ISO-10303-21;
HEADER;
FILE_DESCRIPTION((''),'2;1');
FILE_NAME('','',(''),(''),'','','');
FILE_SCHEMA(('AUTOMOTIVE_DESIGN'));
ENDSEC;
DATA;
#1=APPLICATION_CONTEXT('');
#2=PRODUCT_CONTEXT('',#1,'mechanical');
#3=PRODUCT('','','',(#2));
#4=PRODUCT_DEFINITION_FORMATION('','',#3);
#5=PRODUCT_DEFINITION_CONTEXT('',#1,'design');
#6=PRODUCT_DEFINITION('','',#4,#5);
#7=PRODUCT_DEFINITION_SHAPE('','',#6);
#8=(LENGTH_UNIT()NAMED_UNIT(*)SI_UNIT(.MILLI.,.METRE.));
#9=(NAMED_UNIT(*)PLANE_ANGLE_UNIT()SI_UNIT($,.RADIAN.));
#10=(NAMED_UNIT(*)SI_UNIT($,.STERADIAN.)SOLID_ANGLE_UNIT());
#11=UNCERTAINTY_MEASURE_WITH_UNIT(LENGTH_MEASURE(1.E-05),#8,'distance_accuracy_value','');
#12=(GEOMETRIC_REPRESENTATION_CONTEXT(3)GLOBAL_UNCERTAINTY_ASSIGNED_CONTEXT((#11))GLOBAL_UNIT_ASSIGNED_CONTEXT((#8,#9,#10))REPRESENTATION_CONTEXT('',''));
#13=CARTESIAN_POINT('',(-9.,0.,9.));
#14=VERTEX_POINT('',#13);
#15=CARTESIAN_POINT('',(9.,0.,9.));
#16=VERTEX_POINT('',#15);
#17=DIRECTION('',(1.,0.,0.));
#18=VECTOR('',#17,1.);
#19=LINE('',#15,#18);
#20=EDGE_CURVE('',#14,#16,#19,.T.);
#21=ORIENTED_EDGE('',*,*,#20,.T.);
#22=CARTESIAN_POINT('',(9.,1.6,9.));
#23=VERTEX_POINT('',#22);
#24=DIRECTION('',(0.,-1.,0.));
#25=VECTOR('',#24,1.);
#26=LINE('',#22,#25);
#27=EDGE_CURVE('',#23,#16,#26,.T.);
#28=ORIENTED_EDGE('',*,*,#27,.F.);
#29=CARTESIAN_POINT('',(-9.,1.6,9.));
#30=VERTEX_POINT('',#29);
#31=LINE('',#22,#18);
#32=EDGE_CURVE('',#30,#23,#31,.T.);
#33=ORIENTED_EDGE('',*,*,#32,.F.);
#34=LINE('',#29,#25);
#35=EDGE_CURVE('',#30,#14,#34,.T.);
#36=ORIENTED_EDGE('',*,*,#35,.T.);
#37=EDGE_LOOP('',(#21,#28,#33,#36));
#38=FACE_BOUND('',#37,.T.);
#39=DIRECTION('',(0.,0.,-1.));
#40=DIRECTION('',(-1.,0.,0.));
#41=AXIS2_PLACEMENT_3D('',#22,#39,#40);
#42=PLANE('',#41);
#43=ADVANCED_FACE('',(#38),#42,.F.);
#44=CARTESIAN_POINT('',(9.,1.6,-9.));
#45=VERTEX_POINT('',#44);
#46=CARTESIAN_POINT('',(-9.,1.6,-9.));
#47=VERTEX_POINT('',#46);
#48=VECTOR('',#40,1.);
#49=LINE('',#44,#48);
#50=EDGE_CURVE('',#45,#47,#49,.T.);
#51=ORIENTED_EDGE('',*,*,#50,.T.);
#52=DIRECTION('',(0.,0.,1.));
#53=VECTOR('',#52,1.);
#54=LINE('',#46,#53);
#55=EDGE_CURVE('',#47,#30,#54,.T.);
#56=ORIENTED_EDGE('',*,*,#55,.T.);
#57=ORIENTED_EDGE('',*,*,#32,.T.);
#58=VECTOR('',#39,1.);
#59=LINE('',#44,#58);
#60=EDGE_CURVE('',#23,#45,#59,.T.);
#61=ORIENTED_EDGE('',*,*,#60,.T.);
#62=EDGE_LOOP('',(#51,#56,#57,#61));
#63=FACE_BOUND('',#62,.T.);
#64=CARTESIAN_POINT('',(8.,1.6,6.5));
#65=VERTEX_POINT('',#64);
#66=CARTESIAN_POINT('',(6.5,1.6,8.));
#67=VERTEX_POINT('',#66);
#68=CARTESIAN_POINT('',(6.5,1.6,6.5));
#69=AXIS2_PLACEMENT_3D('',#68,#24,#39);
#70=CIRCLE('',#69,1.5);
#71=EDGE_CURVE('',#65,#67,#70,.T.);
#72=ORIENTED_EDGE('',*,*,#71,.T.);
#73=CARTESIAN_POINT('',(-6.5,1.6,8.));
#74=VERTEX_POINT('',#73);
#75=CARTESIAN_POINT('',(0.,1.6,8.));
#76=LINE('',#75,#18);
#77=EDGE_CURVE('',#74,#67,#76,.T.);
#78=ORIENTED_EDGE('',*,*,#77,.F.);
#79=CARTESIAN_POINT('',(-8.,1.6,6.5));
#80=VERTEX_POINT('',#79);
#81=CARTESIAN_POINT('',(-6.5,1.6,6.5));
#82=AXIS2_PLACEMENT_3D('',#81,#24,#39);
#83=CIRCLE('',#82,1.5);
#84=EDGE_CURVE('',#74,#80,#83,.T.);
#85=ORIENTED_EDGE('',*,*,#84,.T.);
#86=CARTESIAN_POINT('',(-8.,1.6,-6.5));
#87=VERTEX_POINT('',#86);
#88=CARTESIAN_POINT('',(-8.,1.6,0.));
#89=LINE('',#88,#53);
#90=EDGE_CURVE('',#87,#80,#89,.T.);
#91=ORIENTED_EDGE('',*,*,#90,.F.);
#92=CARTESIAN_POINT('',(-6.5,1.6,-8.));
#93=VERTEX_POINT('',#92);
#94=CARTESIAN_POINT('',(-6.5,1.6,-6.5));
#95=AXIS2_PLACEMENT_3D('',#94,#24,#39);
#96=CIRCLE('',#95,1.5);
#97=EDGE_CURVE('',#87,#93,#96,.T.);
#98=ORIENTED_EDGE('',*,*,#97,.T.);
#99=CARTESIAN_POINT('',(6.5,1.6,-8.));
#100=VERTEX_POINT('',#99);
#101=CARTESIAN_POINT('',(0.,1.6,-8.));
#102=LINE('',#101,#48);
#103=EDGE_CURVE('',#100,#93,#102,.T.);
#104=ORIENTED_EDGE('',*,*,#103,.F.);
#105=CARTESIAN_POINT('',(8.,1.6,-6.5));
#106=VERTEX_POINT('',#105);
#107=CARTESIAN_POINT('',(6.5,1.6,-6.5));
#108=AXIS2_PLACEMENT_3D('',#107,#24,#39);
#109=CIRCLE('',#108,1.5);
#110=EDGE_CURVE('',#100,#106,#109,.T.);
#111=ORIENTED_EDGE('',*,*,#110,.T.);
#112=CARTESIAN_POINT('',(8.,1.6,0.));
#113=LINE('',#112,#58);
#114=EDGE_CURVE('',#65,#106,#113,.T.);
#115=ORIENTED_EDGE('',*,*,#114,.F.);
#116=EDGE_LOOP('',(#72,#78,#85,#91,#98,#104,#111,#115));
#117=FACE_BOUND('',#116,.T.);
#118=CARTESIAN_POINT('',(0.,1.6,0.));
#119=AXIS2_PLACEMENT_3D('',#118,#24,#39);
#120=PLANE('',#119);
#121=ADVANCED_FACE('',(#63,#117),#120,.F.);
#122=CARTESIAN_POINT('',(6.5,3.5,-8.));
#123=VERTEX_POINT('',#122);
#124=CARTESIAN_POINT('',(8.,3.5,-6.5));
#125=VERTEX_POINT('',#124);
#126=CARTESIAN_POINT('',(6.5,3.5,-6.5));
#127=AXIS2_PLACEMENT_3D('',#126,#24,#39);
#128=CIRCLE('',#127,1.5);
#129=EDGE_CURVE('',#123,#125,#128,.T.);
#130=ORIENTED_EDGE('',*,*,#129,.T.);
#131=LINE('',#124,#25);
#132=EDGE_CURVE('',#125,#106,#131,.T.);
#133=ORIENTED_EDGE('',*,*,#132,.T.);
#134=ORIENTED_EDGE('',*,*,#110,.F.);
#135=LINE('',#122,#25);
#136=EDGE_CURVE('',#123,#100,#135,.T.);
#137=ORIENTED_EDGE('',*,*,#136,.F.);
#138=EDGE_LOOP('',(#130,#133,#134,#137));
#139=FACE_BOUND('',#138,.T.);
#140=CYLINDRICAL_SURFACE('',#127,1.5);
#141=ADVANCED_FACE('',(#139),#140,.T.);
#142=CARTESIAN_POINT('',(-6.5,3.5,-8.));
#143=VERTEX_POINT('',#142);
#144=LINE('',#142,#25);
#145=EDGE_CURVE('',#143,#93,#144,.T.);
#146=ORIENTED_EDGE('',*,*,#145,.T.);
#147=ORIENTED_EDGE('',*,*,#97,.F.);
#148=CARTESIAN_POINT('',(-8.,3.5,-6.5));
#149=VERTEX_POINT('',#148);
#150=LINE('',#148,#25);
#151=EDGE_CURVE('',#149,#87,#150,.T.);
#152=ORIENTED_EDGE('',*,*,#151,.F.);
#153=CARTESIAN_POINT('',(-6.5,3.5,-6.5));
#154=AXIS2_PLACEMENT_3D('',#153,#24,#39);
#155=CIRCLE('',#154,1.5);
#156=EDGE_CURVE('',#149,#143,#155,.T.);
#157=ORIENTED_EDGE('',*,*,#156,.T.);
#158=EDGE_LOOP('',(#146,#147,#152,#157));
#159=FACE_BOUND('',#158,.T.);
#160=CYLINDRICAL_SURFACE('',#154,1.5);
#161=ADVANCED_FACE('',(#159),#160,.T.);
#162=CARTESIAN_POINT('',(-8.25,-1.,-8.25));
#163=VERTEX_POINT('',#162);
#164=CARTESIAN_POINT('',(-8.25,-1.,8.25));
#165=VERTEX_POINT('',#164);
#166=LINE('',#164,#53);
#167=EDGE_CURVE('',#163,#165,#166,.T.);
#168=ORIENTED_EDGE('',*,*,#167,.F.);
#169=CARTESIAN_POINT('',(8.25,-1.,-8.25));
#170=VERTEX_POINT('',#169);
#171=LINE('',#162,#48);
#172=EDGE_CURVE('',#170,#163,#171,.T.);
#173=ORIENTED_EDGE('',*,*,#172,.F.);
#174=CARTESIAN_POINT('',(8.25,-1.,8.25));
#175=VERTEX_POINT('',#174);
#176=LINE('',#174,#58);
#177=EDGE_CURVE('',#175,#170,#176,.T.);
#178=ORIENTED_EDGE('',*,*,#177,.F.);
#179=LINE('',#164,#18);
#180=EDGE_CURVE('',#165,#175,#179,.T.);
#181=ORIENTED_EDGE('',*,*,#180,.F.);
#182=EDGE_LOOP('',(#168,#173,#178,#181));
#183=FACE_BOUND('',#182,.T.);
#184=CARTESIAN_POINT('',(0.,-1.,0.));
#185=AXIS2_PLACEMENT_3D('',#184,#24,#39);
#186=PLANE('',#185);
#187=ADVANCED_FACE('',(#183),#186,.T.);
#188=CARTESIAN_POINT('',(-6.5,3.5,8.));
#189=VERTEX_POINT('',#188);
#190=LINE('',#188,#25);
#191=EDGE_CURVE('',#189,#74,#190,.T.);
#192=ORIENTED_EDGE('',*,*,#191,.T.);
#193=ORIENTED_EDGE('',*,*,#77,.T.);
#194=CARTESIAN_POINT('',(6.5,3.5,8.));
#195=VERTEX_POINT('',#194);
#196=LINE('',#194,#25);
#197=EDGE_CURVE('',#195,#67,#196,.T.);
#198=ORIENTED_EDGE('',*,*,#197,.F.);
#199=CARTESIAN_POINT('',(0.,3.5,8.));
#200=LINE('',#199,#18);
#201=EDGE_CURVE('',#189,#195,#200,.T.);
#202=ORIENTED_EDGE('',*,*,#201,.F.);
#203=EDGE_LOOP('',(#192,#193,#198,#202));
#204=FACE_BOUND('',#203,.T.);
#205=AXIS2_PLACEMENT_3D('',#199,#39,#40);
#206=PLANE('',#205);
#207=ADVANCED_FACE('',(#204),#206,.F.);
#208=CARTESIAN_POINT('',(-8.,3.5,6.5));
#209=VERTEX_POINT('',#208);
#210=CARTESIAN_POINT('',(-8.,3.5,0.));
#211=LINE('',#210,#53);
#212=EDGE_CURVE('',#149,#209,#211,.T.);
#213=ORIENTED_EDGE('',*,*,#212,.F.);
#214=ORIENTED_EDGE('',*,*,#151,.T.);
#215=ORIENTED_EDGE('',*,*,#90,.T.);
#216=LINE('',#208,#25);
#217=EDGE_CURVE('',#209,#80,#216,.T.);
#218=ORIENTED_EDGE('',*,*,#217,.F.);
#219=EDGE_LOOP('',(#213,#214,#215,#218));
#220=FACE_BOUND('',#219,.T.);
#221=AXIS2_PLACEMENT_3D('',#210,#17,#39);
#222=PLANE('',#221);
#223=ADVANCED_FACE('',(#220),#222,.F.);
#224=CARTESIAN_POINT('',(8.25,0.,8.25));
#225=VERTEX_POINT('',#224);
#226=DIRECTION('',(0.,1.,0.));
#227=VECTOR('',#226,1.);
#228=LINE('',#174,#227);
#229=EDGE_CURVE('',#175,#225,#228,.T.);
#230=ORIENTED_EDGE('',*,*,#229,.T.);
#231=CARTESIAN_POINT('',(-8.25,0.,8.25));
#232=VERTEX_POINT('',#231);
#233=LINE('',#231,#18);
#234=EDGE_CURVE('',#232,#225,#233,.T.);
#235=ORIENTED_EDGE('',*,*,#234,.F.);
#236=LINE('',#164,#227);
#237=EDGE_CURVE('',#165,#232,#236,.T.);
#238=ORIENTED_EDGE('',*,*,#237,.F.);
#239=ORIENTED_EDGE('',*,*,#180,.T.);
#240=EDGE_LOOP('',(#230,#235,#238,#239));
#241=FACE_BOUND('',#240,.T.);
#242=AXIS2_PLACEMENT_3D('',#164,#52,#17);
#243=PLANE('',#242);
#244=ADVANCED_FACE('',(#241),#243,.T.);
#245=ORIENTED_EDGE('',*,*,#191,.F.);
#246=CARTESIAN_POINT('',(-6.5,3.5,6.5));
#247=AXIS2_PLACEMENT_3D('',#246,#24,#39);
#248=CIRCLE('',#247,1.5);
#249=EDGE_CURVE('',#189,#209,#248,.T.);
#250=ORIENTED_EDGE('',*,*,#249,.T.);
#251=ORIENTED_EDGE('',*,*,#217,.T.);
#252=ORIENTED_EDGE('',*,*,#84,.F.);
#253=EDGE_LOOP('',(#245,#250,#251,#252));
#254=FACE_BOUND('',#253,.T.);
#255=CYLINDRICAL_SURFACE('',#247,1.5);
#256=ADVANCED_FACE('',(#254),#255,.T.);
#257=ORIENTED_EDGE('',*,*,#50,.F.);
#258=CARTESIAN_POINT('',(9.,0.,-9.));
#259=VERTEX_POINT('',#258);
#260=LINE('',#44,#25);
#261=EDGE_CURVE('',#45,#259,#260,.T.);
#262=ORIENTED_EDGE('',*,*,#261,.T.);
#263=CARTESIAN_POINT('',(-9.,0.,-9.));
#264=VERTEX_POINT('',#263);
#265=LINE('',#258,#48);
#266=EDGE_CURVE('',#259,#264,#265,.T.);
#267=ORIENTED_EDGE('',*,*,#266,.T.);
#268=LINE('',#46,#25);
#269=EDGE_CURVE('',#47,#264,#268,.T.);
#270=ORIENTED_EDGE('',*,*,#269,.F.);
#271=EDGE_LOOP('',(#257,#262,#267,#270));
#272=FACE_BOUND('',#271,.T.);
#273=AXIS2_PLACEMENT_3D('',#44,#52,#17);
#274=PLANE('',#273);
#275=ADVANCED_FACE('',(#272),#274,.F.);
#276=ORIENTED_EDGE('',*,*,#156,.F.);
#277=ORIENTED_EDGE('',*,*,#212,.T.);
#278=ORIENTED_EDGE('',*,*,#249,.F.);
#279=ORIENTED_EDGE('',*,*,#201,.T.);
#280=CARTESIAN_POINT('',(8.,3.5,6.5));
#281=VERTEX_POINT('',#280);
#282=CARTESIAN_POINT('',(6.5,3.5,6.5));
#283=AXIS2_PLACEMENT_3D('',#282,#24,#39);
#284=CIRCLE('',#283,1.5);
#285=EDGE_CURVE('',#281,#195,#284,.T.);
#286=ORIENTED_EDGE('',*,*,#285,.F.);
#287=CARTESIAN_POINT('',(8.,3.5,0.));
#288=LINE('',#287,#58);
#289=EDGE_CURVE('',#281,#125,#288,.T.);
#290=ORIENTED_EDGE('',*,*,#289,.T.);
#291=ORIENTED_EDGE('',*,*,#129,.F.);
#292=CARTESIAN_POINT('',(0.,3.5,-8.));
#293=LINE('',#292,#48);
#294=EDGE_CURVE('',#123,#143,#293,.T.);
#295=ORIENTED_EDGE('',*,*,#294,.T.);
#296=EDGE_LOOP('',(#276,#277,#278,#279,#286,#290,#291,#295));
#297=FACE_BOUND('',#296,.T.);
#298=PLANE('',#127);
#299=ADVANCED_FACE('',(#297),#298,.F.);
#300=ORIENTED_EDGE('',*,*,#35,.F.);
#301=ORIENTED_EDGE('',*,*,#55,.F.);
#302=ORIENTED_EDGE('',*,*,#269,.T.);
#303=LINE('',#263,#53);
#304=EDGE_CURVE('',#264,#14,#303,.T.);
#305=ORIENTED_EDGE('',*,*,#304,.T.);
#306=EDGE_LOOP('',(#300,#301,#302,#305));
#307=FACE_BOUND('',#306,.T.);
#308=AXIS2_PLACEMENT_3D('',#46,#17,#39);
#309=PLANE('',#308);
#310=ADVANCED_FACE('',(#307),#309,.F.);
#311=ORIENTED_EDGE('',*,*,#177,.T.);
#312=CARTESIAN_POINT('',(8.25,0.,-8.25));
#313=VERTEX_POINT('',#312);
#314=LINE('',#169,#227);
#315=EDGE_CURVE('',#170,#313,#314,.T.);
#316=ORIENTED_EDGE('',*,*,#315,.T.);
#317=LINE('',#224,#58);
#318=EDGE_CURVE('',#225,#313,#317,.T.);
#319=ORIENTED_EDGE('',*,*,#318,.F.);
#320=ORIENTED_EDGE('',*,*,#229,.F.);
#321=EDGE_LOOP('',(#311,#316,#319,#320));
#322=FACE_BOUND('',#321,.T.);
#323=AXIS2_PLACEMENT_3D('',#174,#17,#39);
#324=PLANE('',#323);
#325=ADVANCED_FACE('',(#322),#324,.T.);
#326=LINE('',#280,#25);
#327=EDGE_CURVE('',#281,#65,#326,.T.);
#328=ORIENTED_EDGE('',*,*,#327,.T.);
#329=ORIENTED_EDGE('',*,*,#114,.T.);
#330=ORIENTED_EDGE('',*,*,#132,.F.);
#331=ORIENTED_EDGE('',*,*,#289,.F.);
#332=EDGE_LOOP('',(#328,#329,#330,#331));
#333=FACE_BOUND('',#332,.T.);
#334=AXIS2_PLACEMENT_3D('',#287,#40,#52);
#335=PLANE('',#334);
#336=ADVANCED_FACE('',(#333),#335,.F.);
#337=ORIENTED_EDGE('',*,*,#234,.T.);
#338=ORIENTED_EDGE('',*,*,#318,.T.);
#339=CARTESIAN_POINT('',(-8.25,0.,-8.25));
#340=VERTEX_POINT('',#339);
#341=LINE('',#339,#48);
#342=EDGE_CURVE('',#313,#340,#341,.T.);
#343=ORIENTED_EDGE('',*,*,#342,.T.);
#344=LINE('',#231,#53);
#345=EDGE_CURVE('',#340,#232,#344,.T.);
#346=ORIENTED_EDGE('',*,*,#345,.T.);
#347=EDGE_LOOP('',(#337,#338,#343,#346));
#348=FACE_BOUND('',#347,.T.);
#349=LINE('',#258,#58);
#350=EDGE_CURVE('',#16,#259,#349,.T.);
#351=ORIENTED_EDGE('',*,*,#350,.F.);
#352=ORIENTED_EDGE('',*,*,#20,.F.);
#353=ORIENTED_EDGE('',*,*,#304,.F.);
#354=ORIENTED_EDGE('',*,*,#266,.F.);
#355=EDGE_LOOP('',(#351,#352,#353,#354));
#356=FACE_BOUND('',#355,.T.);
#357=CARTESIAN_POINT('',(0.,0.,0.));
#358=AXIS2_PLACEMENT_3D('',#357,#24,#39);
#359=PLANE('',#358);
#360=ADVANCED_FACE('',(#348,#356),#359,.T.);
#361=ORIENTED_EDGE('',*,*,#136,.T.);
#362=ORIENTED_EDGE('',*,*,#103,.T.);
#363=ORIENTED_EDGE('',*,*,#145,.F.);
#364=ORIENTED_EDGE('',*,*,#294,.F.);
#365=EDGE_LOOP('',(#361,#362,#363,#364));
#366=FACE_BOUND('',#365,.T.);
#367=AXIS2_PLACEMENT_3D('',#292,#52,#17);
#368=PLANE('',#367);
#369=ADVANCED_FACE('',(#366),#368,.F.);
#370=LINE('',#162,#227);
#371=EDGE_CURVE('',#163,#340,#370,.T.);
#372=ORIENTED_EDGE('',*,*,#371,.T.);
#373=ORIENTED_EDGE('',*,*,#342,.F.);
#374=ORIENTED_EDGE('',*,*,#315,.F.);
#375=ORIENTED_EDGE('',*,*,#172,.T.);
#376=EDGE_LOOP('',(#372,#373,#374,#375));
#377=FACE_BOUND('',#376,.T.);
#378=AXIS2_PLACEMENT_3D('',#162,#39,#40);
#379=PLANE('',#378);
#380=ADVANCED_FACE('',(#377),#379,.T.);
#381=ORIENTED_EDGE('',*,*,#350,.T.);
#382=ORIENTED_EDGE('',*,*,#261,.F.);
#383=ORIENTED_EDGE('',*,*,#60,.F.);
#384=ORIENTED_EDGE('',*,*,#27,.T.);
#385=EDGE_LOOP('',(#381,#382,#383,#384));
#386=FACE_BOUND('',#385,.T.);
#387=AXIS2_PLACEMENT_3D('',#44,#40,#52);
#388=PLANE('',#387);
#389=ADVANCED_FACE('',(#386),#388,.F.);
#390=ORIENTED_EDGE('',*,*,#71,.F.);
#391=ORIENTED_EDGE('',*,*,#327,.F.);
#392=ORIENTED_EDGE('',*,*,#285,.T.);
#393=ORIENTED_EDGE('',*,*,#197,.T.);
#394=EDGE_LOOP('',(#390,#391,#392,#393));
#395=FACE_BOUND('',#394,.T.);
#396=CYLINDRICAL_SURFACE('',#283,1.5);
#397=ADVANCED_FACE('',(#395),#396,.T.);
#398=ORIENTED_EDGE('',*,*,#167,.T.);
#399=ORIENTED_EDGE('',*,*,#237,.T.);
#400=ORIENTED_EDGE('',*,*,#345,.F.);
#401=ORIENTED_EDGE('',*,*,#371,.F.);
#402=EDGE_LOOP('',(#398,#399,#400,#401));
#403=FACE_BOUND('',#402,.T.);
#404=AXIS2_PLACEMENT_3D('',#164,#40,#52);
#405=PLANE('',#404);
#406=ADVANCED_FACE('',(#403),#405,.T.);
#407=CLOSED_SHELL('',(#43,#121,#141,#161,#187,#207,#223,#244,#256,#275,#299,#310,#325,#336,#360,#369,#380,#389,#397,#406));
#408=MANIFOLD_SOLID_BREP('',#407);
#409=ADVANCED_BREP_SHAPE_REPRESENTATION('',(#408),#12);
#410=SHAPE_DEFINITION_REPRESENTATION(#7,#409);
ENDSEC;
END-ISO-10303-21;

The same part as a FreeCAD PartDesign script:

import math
import FreeCAD as App
import Part
import Sketcher


def add_polygon(sketch, points):
    """Adds a closed chain of lines whose ends are joined by coincident constraints."""
    first, n = sketch.GeometryCount, len(points)
    for a, b in zip(points, points[1:] + points[:1]):
        sketch.addGeometry(Part.LineSegment(App.Vector(*a, 0), App.Vector(*b, 0)), False)
    for i in range(n):
        sketch.addConstraint(Sketcher.Constraint("Coincident", first + i, 2, first + (i + 1) % n, 1))

doc = App.newDocument("Part")
params = doc.addObject("Spreadsheet::Sheet", "Params")
for row, (alias, value) in enumerate([
    ("sketch1_width", "18 mm"),
    ("pad1_length", "1.6 mm"),
    ("sketch2_radius", "1.5 mm"),
    ("sketch2_width", "13 mm"),
    ("pad2_length", "1.9 mm"),
    ("sketch3_width", "16.5 mm"),
    ("pad3_length", "1 mm"),
], start=1):
    params.set(f"A{row}", alias)
    params.set(f"B{row}", "=" + value)
    params.setAlias(f"B{row}", alias)

body = doc.addObject("PartDesign::Body", "Body")

# Sketch on XZ plane
sketch1 = body.newObject("Sketcher::SketchObject", "Sketch")
sketch1.AttachmentSupport = (doc.getObject("XZ_Plane"), [""])
sketch1.MapMode = "FlatFace"
add_polygon(sketch1, [(-9, -9), (-9, 9), (9, 9), (9, -9)])  # lines 0-3
sketch1.addConstraint(Sketcher.Constraint("Vertical", 0))
sketch1.addConstraint(Sketcher.Constraint("Horizontal", 1))
sketch1.addConstraint(Sketcher.Constraint("Vertical", 2))
sketch1.addConstraint(Sketcher.Constraint("Horizontal", 3))
sketch1.addConstraint(Sketcher.Constraint("Symmetric", 0, 2, 2, 2, -1, 1))
sketch1.addConstraint(Sketcher.Constraint("Equal", 3, 0))
sketch1.addConstraint(Sketcher.Constraint("DistanceX", 1, 1, 1, 2, 18.0))
sketch1.setExpression("Constraints[10]", "Params.sketch1_width")
pad1 = body.newObject("PartDesign::Pad", "Pad")
pad1.Profile = sketch1
pad1.setExpression("Length", "Params.pad1_length")
pad1.Reversed = True

# Sketch on XZ plane
sketch2 = body.newObject("Sketcher::SketchObject", "Sketch001")
sketch2.AttachmentSupport = (doc.getObject("XZ_Plane"), [""])
sketch2.MapMode = "FlatFace"
sketch2.AttachmentOffset = App.Placement(App.Vector(0, 0, -1.6), App.Rotation())
sketch2.addGeometry(Part.LineSegment(App.Vector(6.5, -8, 0), App.Vector(-6.5, -8, 0)), False)
sketch2.addGeometry(Part.ArcOfCircle(Part.Circle(App.Vector(-6.5, -6.5, 0), App.Vector(0, 0, 1), 1.5), math.radians(180), math.radians(270)), False)
sketch2.addGeometry(Part.LineSegment(App.Vector(-8, -6.5, 0), App.Vector(-8, 6.5, 0)), False)
sketch2.addGeometry(Part.ArcOfCircle(Part.Circle(App.Vector(-6.5, 6.5, 0), App.Vector(0, 0, 1), 1.5), math.radians(90), math.radians(180)), False)
sketch2.addGeometry(Part.LineSegment(App.Vector(-6.5, 8, 0), App.Vector(6.5, 8, 0)), False)
sketch2.addGeometry(Part.ArcOfCircle(Part.Circle(App.Vector(6.5, 6.5, 0), App.Vector(0, 0, 1), 1.5), math.radians(0), math.radians(90)), False)
sketch2.addGeometry(Part.LineSegment(App.Vector(8, 6.5, 0), App.Vector(8, -6.5, 0)), False)
sketch2.addGeometry(Part.ArcOfCircle(Part.Circle(App.Vector(6.5, -6.5, 0), App.Vector(0, 0, 1), 1.5), math.radians(-90), math.radians(0)), False)
sketch2.addConstraint(Sketcher.Constraint("Tangent", 0, 2, 1, 2))
sketch2.addConstraint(Sketcher.Constraint("Tangent", 1, 1, 2, 1))
sketch2.addConstraint(Sketcher.Constraint("Tangent", 2, 2, 3, 2))
sketch2.addConstraint(Sketcher.Constraint("Tangent", 3, 1, 4, 1))
sketch2.addConstraint(Sketcher.Constraint("Tangent", 4, 2, 5, 2))
sketch2.addConstraint(Sketcher.Constraint("Tangent", 5, 1, 6, 1))
sketch2.addConstraint(Sketcher.Constraint("Tangent", 6, 2, 7, 2))
sketch2.addConstraint(Sketcher.Constraint("Tangent", 7, 1, 0, 1))
sketch2.addConstraint(Sketcher.Constraint("Horizontal", 0))
sketch2.addConstraint(Sketcher.Constraint("Vertical", 2))
sketch2.addConstraint(Sketcher.Constraint("Horizontal", 4))
sketch2.addConstraint(Sketcher.Constraint("Vertical", 6))
sketch2.addConstraint(Sketcher.Constraint("Equal", 1, 3))
sketch2.addConstraint(Sketcher.Constraint("Equal", 3, 5))
sketch2.addConstraint(Sketcher.Constraint("Equal", 5, 7))
sketch2.addConstraint(Sketcher.Constraint("Symmetric", 1, 3, 5, 3, -1, 1))
sketch2.addConstraint(Sketcher.Constraint("Equal", 4, 2))
sketch2.addConstraint(Sketcher.Constraint("Radius", 1, 1.5))
sketch2.addConstraint(Sketcher.Constraint("DistanceX", 0, 2, 0, 1, 13.0))
sketch2.setExpression("Constraints[17]", "Params.sketch2_radius")
sketch2.setExpression("Constraints[18]", "Params.sketch2_width")
pad2 = body.newObject("PartDesign::Pad", "Pad001")
pad2.Profile = sketch2
pad2.setExpression("Length", "Params.pad2_length")
pad2.Reversed = True

# Sketch on XZ plane
sketch3 = body.newObject("Sketcher::SketchObject", "Sketch002")
sketch3.AttachmentSupport = (doc.getObject("XZ_Plane"), [""])
sketch3.MapMode = "FlatFace"
add_polygon(sketch3, [(-8.25, -8.25), (-8.25, 8.25), (8.25, 8.25), (8.25, -8.25)])  # lines 0-3
sketch3.addConstraint(Sketcher.Constraint("Vertical", 0))
sketch3.addConstraint(Sketcher.Constraint("Horizontal", 1))
sketch3.addConstraint(Sketcher.Constraint("Vertical", 2))
sketch3.addConstraint(Sketcher.Constraint("Horizontal", 3))
sketch3.addConstraint(Sketcher.Constraint("Symmetric", 0, 2, 2, 2, -1, 1))
sketch3.addConstraint(Sketcher.Constraint("Equal", 3, 0))
sketch3.addConstraint(Sketcher.Constraint("DistanceX", 1, 1, 1, 2, 16.5))
sketch3.setExpression("Constraints[10]", "Params.sketch3_width")
pad3 = body.newObject("PartDesign::Pad", "Pad002")
pad3.Profile = sketch3
pad3.setExpression("Length", "Params.pad3_length")

doc.recompute()
